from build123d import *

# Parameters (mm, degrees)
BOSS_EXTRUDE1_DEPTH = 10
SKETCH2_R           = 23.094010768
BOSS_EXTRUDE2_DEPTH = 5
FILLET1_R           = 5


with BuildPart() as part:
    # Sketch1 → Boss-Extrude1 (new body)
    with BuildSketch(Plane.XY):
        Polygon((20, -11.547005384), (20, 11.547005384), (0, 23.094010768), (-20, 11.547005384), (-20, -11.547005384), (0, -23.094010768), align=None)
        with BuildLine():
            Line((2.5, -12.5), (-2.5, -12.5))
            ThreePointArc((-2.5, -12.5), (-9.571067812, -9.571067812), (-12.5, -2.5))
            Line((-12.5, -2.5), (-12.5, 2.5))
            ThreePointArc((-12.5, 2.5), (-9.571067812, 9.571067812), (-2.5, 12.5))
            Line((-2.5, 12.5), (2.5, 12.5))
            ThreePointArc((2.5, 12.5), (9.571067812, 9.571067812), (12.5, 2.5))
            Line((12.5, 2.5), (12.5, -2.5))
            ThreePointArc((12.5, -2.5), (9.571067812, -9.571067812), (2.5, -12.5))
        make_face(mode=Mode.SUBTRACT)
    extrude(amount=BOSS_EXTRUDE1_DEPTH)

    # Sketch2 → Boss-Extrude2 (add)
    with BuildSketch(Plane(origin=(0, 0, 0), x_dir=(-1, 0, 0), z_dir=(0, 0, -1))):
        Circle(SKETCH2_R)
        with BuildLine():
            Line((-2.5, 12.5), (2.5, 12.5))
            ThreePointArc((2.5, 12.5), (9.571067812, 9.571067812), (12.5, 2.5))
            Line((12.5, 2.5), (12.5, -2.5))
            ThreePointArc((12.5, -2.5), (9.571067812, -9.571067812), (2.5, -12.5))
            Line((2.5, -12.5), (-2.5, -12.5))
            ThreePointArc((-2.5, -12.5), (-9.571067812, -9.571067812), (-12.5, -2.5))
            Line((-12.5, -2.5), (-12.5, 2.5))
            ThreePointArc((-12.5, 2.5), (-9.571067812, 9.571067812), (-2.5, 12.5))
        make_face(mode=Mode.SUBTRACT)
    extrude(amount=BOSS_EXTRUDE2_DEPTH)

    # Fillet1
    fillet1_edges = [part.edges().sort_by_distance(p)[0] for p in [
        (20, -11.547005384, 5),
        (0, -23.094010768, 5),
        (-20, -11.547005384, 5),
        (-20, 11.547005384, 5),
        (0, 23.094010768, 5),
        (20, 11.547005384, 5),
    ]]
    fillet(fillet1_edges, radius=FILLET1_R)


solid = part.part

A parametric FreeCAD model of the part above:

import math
import FreeCAD as App
import Part
import Sketcher

V = App.Vector
Q = App.Units.Quantity


def edges_at(feature, points):
    """Names of the edges that pass closest to the given points."""
    edges = feature.Shape.Edges
    near = lambda p: min(range(len(edges)), key=lambda i: edges[i].distToShape(Part.Vertex(*p))[0])
    return sorted({f"Edge{near(p) + 1}" for p in points})


def add_polygon(sketch, points):
    """Adds a closed chain of lines whose ends are joined by coincident constraints."""
    first, n = sketch.GeometryCount, len(points)
    for a, b in zip(points, points[1:] + points[:1]):
        sketch.addGeometry(Part.LineSegment(App.Vector(*a, 0), App.Vector(*b, 0)), False)
    for i in range(n):
        sketch.addConstraint(Sketcher.Constraint("Coincident", first + i, 2, first + (i + 1) % n, 1))

doc = App.newDocument("Part")
body = doc.addObject("PartDesign::Body", "Body")

sketch1 = body.newObject("Sketcher::SketchObject", "Sketch")
sketch1.AttachmentSupport = (doc.getObject("XY_Plane"), [""])
sketch1.MapMode = "FlatFace"
add_polygon(sketch1, [(20, -12), (20, 12), (0, 23), (-20, 12), (-20, -12), (0, -23)])
sketch1.addGeometry(Part.ArcOfCircle(Part.Circle(V(2, -2, 0), V(0, 0, 1), 10), math.radians(-90), math.radians(0)), False)
sketch1.addGeometry(Part.LineSegment(V(2, -12, 0), V(-2, -12, 0)), False)
sketch1.addGeometry(Part.ArcOfCircle(Part.Circle(V(-2, -2, 0), V(0, 0, 1), 10), math.radians(180), math.radians(270)), False)
sketch1.addGeometry(Part.LineSegment(V(-12, -2, 0), V(-12, 2, 0)), False)
sketch1.addGeometry(Part.ArcOfCircle(Part.Circle(V(-2, 2, 0), V(0, 0, 1), 10), math.radians(90), math.radians(180)), False)
sketch1.addGeometry(Part.LineSegment(V(-2, 12, 0), V(2, 12, 0)), False)
sketch1.addGeometry(Part.ArcOfCircle(Part.Circle(V(2, 2, 0), V(0, 0, 1), 10), math.radians(0), math.radians(90)), False)
sketch1.addGeometry(Part.LineSegment(V(12, 2, 0), V(12, -2, 0)), False)
sketch1.addConstraint([
    Sketcher.Constraint("Tangent", 6, 1, 7, 1),
    Sketcher.Constraint("Tangent", 7, 2, 8, 2),
    Sketcher.Constraint("Tangent", 8, 1, 9, 1),
    Sketcher.Constraint("Tangent", 9, 2, 10, 2),
    Sketcher.Constraint("Tangent", 10, 1, 11, 1),
    Sketcher.Constraint("Tangent", 11, 2, 12, 2),
    Sketcher.Constraint("Tangent", 12, 1, 13, 1),
    Sketcher.Constraint("Tangent", 13, 2, 6, 2),
    Sketcher.Constraint("Vertical", 0),
    Sketcher.Constraint("Vertical", 3),
    Sketcher.Constraint("Horizontal", 7),
    Sketcher.Constraint("Vertical", 9),
    Sketcher.Constraint("Horizontal", 11),
    Sketcher.Constraint("Vertical", 13),
    Sketcher.Constraint("Equal", 6, 8),
    Sketcher.Constraint("Equal", 8, 10),
    Sketcher.Constraint("Equal", 10, 12),
    Sketcher.Constraint("Symmetric", 6, 3, 10, 3, -1, 1),
    Sketcher.Constraint("Symmetric", 0, 2, 3, 2, -1, 1),
    Sketcher.Constraint("Symmetric", 1, 2, 4, 2, -1, 1),
    Sketcher.Constraint("PointOnObject", 1, 2, -2),
    Sketcher.Constraint("Parallel", 2, 5),
    Sketcher.Constraint("Horizontal", 0, 2, 2, 2),
    Sketcher.Constraint("Equal", 11, 9),
    Sketcher.Constraint("Radius", 6, Q("10 mm")),
    Sketcher.Constraint("DistanceX", 7, 2, 7, 1, Q("5 mm")),
    Sketcher.Constraint("Angle", 1, Q("150 deg")),
    Sketcher.Constraint("DistanceX", -1, 1, 0, 2, Q("20 mm")),
    Sketcher.Constraint("DistanceY", 0, 1, 0, 2, Q("23.094011 mm")),
])
pad1 = body.newObject("PartDesign::Pad", "Pad")
pad1.Profile = sketch1
pad1.Length = 10

sketch2 = body.newObject("Sketcher::SketchObject", "Sketch001")
sketch2.AttachmentSupport = (doc.getObject("XY_Plane"), [""])
sketch2.MapMode = "FlatFace"
sketch2.addGeometry([
    Part.Circle(V(0, 0, 0), V(0, 0, 1), 23),
    Part.ArcOfCircle(Part.Circle(V(2, 2, 0), V(0, 0, 1), 10), math.radians(0), math.radians(90)),
    Part.LineSegment(V(2, 12, 0), V(-2, 12, 0)),
    Part.ArcOfCircle(Part.Circle(V(-2, 2, 0), V(0, 0, 1), 10), math.radians(90), math.radians(180)),
    Part.LineSegment(V(-12, 2, 0), V(-12, -2, 0)),
    Part.ArcOfCircle(Part.Circle(V(-2, -2, 0), V(0, 0, 1), 10), math.radians(180), math.radians(270)),
    Part.LineSegment(V(-2, -12, 0), V(2, -12, 0)),
    Part.ArcOfCircle(Part.Circle(V(2, -2, 0), V(0, 0, 1), 10), math.radians(-90), math.radians(0)),
    Part.LineSegment(V(12, -2, 0), V(12, 2, 0)),
], False)
sketch2.addConstraint([
    Sketcher.Constraint("Tangent", 1, 2, 2, 1),
    Sketcher.Constraint("Tangent", 2, 2, 3, 1),
    Sketcher.Constraint("Tangent", 3, 2, 4, 1),
    Sketcher.Constraint("Tangent", 4, 2, 5, 1),
    Sketcher.Constraint("Tangent", 5, 2, 6, 1),
    Sketcher.Constraint("Tangent", 6, 2, 7, 1),
    Sketcher.Constraint("Tangent", 7, 2, 8, 1),
    Sketcher.Constraint("Tangent", 8, 2, 1, 1),
    Sketcher.Constraint("Horizontal", 2),
    Sketcher.Constraint("Vertical", 4),
    Sketcher.Constraint("Horizontal", 6),
    Sketcher.Constraint("Vertical", 8),
    Sketcher.Constraint("Coincident", 0, 3, -1, 1),
    Sketcher.Constraint("Equal", 1, 3),
    Sketcher.Constraint("Equal", 3, 5),
    Sketcher.Constraint("Equal", 5, 7),
    Sketcher.Constraint("Symmetric", 1, 3, 5, 3, -1, 1),
    Sketcher.Constraint("Equal", 6, 4),
    Sketcher.Constraint("Radius", 1, Q("10 mm")),
    Sketcher.Constraint("DistanceX", 2, 2, 2, 1, Q("5 mm")),
    Sketcher.Constraint("Diameter", 0, Q("46.188022 mm")),
])
pad2 = body.newObject("PartDesign::Pad", "Pad001")
pad2.Profile = sketch2
pad2.Length = 5
pad2.Reversed = True
doc.recompute()

fillet = body.newObject("PartDesign::Fillet", "Fillet")
fillet.Base = (pad2, edges_at(pad2, [
    (20, -11.547, 5),
    (0, -23.094, 5),
    (-20, -11.547, 5),
    (-20, 11.547, 5),
    (0, 23.094, 5),
    (20, 11.547, 5),
]))
fillet.Radius = 5

doc.recompute()
